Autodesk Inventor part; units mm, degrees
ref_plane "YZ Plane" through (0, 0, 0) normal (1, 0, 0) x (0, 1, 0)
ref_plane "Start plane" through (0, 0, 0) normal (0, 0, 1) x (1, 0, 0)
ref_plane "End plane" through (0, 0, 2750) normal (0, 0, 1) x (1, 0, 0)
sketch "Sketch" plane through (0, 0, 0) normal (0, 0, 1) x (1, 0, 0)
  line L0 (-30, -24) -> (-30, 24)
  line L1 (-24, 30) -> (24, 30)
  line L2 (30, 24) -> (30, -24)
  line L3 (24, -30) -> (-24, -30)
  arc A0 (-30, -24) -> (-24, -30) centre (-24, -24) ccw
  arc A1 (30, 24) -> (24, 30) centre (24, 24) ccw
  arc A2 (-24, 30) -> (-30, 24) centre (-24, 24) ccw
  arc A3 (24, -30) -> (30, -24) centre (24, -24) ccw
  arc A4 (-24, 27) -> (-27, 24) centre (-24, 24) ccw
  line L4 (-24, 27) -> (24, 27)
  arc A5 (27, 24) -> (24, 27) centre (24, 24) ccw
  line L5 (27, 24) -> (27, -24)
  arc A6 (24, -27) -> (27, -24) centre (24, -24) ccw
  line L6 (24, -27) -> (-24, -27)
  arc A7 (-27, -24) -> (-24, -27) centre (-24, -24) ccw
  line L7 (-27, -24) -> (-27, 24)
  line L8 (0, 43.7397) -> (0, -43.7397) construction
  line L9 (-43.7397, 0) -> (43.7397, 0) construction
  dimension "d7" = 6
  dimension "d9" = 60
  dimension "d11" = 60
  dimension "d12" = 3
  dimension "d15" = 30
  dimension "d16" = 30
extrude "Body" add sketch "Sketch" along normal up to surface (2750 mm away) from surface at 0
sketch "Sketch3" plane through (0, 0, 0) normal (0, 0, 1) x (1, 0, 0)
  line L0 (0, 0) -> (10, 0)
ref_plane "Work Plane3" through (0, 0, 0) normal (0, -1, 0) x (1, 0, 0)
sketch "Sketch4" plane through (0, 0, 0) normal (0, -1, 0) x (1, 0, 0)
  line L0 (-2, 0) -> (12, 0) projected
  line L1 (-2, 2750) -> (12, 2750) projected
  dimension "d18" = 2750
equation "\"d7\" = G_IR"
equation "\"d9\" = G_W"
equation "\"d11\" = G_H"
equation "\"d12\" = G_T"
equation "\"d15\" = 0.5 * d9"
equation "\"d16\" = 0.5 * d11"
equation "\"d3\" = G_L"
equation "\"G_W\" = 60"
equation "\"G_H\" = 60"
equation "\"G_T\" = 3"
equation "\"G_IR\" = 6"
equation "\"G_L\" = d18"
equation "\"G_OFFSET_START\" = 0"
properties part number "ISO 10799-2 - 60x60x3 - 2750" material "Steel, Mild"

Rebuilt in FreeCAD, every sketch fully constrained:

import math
import FreeCAD as App
import Part
import Sketcher

V = App.Vector

doc = App.newDocument("Part")
params = doc.addObject("Spreadsheet::Sheet", "Params")
for row, (alias, value) in enumerate([
    ("sketch1_radius", "6 mm"),
    ("sketch1_radius2", "3 mm"),
    ("pad1_length", "2750 mm"),
], start=1):
    params.set(f"A{row}", alias)
    params.set(f"B{row}", "=" + value)
    params.setAlias(f"B{row}", alias)

body = doc.addObject("PartDesign::Body", "Body")

sketch1 = doc.addObject("Sketcher::SketchObject", "Sketch")
body.addObject(sketch1)
sketch1.AttachmentSupport = (doc.XY_Plane, [""])
sketch1.MapMode = "FlatFace"
sketch1.addGeometry(Part.LineSegment(V(-30, 24, 0), V(-30, -24, 0)), False)
sketch1.addGeometry(Part.ArcOfCircle(Part.Circle(V(-24, -24, 0), V(0, 0, 1), 6), math.radians(180), math.radians(270)), False)
sketch1.addGeometry(Part.LineSegment(V(-24, -30, 0), V(24, -30, 0)), False)
sketch1.addGeometry(Part.ArcOfCircle(Part.Circle(V(24, -24, 0), V(0, 0, 1), 6), math.radians(-90), math.radians(0)), False)
sketch1.addGeometry(Part.LineSegment(V(30, -24, 0), V(30, 24, 0)), False)
sketch1.addGeometry(Part.ArcOfCircle(Part.Circle(V(24, 24, 0), V(0, 0, 1), 6), math.radians(0), math.radians(90)), False)
sketch1.addGeometry(Part.LineSegment(V(24, 30, 0), V(-24, 30, 0)), False)
sketch1.addGeometry(Part.ArcOfCircle(Part.Circle(V(-24, 24, 0), V(0, 0, 1), 6), math.radians(90), math.radians(180)), False)
sketch1.addGeometry(Part.ArcOfCircle(Part.Circle(V(-24, 24, 0), V(0, 0, 1), 3), math.radians(90), math.radians(180)), False)
sketch1.addGeometry(Part.LineSegment(V(-24, 27, 0), V(24, 27, 0)), False)
sketch1.addGeometry(Part.ArcOfCircle(Part.Circle(V(24, 24, 0), V(0, 0, 1), 3), math.radians(0), math.radians(90)), False)
sketch1.addGeometry(Part.LineSegment(V(27, 24, 0), V(27, -24, 0)), False)
sketch1.addGeometry(Part.ArcOfCircle(Part.Circle(V(24, -24, 0), V(0, 0, 1), 3), math.radians(-90), math.radians(0)), False)
sketch1.addGeometry(Part.LineSegment(V(24, -27, 0), V(-24, -27, 0)), False)
sketch1.addGeometry(Part.ArcOfCircle(Part.Circle(V(-24, -24, 0), V(0, 0, 1), 3), math.radians(180), math.radians(270)), False)
sketch1.addGeometry(Part.LineSegment(V(-27, -24, 0), V(-27, 24, 0)), False)
sketch1.addConstraint(Sketcher.Constraint("Tangent", 0, 2, 1, 1))
sketch1.addConstraint(Sketcher.Constraint("Tangent", 1, 2, 2, 1))
sketch1.addConstraint(Sketcher.Constraint("Tangent", 2, 2, 3, 1))
sketch1.addConstraint(Sketcher.Constraint("Tangent", 3, 2, 4, 1))
sketch1.addConstraint(Sketcher.Constraint("Tangent", 4, 2, 5, 1))
sketch1.addConstraint(Sketcher.Constraint("Tangent", 5, 2, 6, 1))
sketch1.addConstraint(Sketcher.Constraint("Tangent", 6, 2, 7, 1))
sketch1.addConstraint(Sketcher.Constraint("Tangent", 7, 2, 0, 1))
sketch1.addConstraint(Sketcher.Constraint("Tangent", 8, 1, 9, 1))
sketch1.addConstraint(Sketcher.Constraint("Tangent", 9, 2, 10, 2))
sketch1.addConstraint(Sketcher.Constraint("Tangent", 10, 1, 11, 1))
sketch1.addConstraint(Sketcher.Constraint("Tangent", 11, 2, 12, 2))
sketch1.addConstraint(Sketcher.Constraint("Tangent", 12, 1, 13, 1))
sketch1.addConstraint(Sketcher.Constraint("Tangent", 13, 2, 14, 2))
sketch1.addConstraint(Sketcher.Constraint("Tangent", 14, 1, 15, 1))
sketch1.addConstraint(Sketcher.Constraint("Tangent", 15, 2, 8, 2))
sketch1.addConstraint(Sketcher.Constraint("Vertical", 0))
sketch1.addConstraint(Sketcher.Constraint("Horizontal", 2))
sketch1.addConstraint(Sketcher.Constraint("Vertical", 4))
sketch1.addConstraint(Sketcher.Constraint("Horizontal", 6))
sketch1.addConstraint(Sketcher.Constraint("Horizontal", 9))
sketch1.addConstraint(Sketcher.Constraint("Vertical", 11))
sketch1.addConstraint(Sketcher.Constraint("Horizontal", 13))
sketch1.addConstraint(Sketcher.Constraint("Vertical", 15))
sketch1.addConstraint(Sketcher.Constraint("Coincident", 8, 3, 7, 3))
sketch1.addConstraint(Sketcher.Constraint("Coincident", 10, 3, 5, 3))
sketch1.addConstraint(Sketcher.Constraint("Coincident", 12, 3, 3, 3))
sketch1.addConstraint(Sketcher.Constraint("Equal", 1, 3))
sketch1.addConstraint(Sketcher.Constraint("Equal", 3, 5))
sketch1.addConstraint(Sketcher.Constraint("Equal", 5, 7))
sketch1.addConstraint(Sketcher.Constraint("Equal", 12, 14))
sketch1.addConstraint(Sketcher.Constraint("Symmetric", 1, 3, 5, 3, -1, 1))
sketch1.addConstraint(Sketcher.Constraint("Equal", 13, 0))
sketch1.addConstraint(Sketcher.Constraint("Radius", 1, 6.0))
sketch1.addConstraint(Sketcher.Constraint("Radius", 8, 3.0))
sketch1.addConstraint(Sketcher.Constraint("DistanceX", 0, 2, -1, 1, 30.0))
sketch1.setExpression("Constraints[33]", "Params.sketch1_radius")
sketch1.setExpression("Constraints[34]", "Params.sketch1_radius2")
pad1 = doc.addObject("PartDesign::Pad", "Pad")
body.addObject(pad1)
pad1.Profile = sketch1
pad1.setExpression("Length", "Params.pad1_length")

doc.recompute()
